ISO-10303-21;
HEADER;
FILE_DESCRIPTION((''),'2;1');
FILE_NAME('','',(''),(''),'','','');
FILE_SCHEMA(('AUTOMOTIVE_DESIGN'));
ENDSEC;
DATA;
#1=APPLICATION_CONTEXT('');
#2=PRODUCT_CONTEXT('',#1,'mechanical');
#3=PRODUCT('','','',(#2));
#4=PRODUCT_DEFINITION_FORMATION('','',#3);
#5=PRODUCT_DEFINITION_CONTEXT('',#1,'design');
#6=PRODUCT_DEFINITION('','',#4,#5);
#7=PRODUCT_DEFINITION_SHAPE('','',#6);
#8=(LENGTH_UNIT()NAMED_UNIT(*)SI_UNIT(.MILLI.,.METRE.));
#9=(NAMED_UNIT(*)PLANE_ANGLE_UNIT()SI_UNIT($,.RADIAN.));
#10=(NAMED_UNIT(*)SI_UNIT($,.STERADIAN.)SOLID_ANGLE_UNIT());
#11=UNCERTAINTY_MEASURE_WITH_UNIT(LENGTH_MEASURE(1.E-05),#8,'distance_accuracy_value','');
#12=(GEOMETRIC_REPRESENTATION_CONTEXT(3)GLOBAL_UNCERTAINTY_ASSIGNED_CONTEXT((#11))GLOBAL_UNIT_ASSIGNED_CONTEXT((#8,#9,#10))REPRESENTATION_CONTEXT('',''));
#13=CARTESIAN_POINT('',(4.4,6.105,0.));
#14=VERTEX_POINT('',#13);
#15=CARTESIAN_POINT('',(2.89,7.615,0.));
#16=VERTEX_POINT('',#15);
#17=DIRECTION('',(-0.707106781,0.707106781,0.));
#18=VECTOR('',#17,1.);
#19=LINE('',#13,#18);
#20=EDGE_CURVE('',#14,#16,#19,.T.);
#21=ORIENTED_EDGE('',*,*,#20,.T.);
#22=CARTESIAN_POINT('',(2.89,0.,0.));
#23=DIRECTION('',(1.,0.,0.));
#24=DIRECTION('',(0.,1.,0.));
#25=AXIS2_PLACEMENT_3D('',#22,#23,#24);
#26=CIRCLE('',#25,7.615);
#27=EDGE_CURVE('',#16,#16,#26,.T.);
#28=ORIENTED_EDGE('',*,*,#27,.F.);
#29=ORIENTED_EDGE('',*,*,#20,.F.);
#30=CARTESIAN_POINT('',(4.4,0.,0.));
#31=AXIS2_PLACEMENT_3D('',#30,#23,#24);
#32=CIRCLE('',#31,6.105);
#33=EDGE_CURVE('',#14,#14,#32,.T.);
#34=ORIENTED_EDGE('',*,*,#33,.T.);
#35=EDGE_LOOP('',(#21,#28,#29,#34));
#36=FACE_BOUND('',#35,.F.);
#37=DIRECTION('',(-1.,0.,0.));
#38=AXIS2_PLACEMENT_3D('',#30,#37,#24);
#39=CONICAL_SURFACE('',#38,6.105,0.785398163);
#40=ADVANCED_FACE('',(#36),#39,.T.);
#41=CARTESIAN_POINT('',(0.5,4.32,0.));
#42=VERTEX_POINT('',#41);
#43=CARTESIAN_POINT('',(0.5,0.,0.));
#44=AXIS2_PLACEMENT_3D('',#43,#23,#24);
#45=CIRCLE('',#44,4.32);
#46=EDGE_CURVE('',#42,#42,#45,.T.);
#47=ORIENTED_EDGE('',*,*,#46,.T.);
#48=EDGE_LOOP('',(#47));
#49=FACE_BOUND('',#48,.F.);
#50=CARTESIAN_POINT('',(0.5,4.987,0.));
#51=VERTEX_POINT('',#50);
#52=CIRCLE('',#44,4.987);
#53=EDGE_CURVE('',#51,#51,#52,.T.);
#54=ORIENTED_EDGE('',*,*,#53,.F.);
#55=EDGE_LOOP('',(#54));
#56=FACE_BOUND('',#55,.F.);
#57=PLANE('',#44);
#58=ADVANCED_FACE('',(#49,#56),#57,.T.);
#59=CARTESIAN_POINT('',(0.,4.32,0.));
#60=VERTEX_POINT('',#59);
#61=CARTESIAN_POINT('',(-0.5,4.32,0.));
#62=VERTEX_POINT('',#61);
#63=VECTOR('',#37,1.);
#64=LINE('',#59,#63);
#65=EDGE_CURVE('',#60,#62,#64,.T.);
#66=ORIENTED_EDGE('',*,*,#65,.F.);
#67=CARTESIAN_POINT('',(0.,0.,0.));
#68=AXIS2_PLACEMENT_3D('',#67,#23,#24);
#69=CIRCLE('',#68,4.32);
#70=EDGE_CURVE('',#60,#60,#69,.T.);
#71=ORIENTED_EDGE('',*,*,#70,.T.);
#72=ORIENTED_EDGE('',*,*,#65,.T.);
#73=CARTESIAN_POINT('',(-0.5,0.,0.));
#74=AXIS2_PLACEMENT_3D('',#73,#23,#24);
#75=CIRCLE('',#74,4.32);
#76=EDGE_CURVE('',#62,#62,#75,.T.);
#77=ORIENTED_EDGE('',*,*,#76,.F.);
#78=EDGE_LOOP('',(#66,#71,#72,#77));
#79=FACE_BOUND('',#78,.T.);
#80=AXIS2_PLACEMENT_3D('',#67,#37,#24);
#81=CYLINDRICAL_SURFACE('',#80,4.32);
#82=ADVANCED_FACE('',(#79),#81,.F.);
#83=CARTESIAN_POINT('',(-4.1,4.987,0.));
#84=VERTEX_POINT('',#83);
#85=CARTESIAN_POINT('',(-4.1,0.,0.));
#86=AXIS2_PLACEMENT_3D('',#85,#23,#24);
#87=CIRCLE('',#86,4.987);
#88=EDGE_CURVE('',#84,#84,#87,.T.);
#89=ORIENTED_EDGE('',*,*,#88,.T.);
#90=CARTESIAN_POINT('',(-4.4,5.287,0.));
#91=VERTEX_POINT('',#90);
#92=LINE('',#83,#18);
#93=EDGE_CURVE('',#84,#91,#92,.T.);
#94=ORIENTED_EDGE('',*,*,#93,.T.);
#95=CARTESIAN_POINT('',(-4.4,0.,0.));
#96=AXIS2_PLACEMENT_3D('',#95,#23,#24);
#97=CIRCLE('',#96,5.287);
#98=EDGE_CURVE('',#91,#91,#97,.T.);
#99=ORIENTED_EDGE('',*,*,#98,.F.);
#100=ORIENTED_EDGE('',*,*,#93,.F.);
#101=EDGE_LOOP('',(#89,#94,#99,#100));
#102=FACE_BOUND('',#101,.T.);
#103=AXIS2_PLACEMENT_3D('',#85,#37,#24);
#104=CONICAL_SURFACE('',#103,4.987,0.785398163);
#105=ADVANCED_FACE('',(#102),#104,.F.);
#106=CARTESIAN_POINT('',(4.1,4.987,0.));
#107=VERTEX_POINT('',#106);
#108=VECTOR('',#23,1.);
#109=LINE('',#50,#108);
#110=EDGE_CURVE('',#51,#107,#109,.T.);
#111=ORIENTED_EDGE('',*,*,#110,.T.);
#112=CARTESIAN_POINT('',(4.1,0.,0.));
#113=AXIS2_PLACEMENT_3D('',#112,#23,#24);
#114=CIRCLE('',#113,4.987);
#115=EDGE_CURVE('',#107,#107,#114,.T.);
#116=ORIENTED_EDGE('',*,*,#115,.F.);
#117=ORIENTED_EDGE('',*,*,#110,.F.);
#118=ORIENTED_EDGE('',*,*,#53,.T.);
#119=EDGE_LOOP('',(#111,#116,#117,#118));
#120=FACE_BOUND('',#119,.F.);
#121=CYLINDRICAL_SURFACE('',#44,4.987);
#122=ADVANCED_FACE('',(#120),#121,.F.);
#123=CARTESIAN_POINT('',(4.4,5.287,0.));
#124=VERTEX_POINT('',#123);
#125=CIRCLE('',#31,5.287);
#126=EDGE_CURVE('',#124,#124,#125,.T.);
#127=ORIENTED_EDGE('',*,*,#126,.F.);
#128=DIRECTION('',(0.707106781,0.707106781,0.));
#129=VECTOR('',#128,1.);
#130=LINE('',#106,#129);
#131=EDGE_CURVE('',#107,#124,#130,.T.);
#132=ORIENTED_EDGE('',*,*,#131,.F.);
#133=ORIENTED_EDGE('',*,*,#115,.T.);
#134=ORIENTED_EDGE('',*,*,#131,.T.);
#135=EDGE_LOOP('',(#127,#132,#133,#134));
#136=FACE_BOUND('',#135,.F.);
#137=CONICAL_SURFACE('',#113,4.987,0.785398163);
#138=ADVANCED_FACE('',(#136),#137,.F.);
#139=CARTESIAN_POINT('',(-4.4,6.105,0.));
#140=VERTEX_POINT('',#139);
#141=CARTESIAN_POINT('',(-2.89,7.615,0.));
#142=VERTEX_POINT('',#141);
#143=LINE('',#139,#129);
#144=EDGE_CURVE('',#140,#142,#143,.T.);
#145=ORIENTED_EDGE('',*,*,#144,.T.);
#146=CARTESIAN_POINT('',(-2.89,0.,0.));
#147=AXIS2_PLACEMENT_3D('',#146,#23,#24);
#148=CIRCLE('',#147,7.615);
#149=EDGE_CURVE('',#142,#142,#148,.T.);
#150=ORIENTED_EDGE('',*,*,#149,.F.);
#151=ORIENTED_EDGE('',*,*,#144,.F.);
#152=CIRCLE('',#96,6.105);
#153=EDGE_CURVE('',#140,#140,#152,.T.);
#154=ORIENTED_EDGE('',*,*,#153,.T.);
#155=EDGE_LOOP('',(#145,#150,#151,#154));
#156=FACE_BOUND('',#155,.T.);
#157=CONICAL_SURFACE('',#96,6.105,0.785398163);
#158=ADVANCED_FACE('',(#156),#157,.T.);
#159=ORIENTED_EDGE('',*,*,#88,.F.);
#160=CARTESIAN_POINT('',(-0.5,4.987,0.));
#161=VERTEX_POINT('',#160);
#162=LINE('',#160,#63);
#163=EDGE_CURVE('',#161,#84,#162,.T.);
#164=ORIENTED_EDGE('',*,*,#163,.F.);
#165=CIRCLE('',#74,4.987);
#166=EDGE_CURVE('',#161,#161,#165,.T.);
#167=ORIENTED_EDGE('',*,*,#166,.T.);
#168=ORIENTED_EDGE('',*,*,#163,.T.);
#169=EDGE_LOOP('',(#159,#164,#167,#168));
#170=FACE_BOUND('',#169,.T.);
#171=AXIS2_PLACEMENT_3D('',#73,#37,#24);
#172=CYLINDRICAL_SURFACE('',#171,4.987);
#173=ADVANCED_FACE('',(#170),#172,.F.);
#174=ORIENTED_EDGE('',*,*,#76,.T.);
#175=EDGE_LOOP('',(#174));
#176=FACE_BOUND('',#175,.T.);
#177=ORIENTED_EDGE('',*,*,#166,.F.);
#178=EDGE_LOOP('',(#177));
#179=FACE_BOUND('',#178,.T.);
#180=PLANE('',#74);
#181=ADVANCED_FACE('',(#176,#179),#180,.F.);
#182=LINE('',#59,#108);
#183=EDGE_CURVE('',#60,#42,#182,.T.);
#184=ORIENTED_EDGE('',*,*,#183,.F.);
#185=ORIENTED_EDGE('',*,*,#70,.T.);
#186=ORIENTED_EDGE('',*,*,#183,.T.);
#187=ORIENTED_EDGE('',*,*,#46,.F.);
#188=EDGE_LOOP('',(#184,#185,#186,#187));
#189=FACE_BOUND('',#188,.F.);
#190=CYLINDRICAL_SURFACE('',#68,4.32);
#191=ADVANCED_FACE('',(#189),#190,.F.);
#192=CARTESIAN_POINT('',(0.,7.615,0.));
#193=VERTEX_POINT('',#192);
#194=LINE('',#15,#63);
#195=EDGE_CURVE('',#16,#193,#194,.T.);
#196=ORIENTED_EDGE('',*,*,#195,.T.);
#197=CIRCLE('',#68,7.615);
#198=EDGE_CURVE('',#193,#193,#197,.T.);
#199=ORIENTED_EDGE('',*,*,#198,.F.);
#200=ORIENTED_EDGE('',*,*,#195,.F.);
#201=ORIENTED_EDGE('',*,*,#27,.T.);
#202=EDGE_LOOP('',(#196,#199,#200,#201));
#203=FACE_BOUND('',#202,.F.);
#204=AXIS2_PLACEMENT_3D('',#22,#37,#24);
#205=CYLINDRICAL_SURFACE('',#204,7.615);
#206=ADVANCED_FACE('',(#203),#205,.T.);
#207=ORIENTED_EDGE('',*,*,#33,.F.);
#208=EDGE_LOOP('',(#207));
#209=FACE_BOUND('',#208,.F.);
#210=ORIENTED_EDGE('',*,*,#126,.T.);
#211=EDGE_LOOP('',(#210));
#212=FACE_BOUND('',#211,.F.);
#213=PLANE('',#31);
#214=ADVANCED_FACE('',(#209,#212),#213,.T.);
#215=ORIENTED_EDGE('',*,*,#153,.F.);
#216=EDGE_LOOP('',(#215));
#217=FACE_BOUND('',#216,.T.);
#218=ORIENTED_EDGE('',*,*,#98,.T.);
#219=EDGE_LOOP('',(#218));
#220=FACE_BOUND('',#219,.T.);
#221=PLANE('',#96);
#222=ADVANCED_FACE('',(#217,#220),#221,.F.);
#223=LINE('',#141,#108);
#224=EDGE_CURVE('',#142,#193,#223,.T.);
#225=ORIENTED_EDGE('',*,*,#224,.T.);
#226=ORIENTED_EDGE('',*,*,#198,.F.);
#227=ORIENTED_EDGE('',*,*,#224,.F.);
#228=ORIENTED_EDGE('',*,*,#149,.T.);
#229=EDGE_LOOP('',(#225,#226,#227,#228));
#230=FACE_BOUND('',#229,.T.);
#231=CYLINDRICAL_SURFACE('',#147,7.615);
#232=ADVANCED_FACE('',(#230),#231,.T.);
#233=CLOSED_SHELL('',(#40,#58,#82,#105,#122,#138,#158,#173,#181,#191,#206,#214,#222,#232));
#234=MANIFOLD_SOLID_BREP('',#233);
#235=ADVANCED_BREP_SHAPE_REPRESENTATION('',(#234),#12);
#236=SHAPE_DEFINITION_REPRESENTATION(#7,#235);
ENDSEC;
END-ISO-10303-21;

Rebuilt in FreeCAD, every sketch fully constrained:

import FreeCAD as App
import Part
import Sketcher
from FreeCAD import Vector
Q = App.Units.Quantity


def add_polygon(sketch, points):
    """Adds a closed chain of lines whose ends are joined by coincident constraints."""
    first, n = sketch.GeometryCount, len(points)
    for a, b in zip(points, points[1:] + points[:1]):
        sketch.addGeometry(Part.LineSegment(App.Vector(*a, 0), App.Vector(*b, 0)), False)
    for i in range(n):
        sketch.addConstraint(Sketcher.Constraint("Coincident", first + i, 2, first + (i + 1) % n, 1))

doc = App.newDocument("Part")
params = doc.addObject("Spreadsheet::Sheet", "Params")
for row, (alias, value) in enumerate([
    ("sketch1_width", "5.78 mm"),
    ("revolution_angle", "360 deg"),
], start=1):
    params.set(f"A{row}", alias)
    params.set(f"B{row}", "=" + value)
    params.setAlias(f"B{row}", alias)

body = doc.addObject("PartDesign::Body", "Body")

# Sketch on XY plane
sketch1 = body.newObject("Sketcher::SketchObject", "Sketch")
sketch1.AttachmentSupport = (doc.getObject("XY_Plane"), [""])
sketch1.MapMode = "FlatFace"
add_polygon(sketch1, [(-0.5, 4.32), (0.5, 4.32), (0.5, 4.987), (4.1, 4.987), (4.4, 5.287), (4.4, 6.105), (2.89, 7.615), (-2.89, 7.615), (-4.4, 6.105), (-4.4, 5.287), (-4.1, 4.987), (-0.5, 4.987)])  # lines 0-11
sketch1.addConstraint([
    Sketcher.Constraint("Horizontal", 0),
    Sketcher.Constraint("Vertical", 1),
    Sketcher.Constraint("Horizontal", 2),
    Sketcher.Constraint("Vertical", 4),
    Sketcher.Constraint("Horizontal", 6),
    Sketcher.Constraint("Vertical", 8),
    Sketcher.Constraint("Horizontal", 10),
    Sketcher.Constraint("Vertical", 11),
    Sketcher.Constraint("Symmetric", 4, 2, 7, 2, -2),
    Sketcher.Constraint("Symmetric", 2, 2, 9, 2, -2),
    Sketcher.Constraint("Perpendicular", 3, 5),
    Sketcher.Constraint("Perpendicular", 5, 7),
    Sketcher.Constraint("Perpendicular", 7, 9),
    Sketcher.Constraint("Horizontal", 3, 2, 8, 2),
    Sketcher.Constraint("Equal", 2, 10),
    Sketcher.Constraint("DistanceX", 6, 2, 6, 1, Q("5.78 mm")),
    Sketcher.Constraint("DistanceX", -1, 1, 0, 2, Q("0.5 mm")),
    Sketcher.Constraint("DistanceX", 2, 2, 3, 2, Q("0.3 mm")),
    Sketcher.Constraint("DistanceX", 1, 2, 3, 2, Q("3.9 mm")),
    Sketcher.Constraint("DistanceY", 1, 1, 1, 2, Q("0.667 mm")),
    Sketcher.Constraint("DistanceY", 4, 1, 4, 2, Q("0.818 mm")),
    Sketcher.Constraint("DistanceY", -1, 1, 0, 2, Q("4.32 mm")),
])
sketch1.setExpression("Constraints[27]", "Params.sketch1_width")
revolution = body.newObject("PartDesign::Revolution", "Revolution")
revolution.Profile = sketch1
revolution.ReferenceAxis = (sketch1, ["H_Axis"])
revolution.setExpression("Angle", "Params.revolution_angle")

doc.recompute()
